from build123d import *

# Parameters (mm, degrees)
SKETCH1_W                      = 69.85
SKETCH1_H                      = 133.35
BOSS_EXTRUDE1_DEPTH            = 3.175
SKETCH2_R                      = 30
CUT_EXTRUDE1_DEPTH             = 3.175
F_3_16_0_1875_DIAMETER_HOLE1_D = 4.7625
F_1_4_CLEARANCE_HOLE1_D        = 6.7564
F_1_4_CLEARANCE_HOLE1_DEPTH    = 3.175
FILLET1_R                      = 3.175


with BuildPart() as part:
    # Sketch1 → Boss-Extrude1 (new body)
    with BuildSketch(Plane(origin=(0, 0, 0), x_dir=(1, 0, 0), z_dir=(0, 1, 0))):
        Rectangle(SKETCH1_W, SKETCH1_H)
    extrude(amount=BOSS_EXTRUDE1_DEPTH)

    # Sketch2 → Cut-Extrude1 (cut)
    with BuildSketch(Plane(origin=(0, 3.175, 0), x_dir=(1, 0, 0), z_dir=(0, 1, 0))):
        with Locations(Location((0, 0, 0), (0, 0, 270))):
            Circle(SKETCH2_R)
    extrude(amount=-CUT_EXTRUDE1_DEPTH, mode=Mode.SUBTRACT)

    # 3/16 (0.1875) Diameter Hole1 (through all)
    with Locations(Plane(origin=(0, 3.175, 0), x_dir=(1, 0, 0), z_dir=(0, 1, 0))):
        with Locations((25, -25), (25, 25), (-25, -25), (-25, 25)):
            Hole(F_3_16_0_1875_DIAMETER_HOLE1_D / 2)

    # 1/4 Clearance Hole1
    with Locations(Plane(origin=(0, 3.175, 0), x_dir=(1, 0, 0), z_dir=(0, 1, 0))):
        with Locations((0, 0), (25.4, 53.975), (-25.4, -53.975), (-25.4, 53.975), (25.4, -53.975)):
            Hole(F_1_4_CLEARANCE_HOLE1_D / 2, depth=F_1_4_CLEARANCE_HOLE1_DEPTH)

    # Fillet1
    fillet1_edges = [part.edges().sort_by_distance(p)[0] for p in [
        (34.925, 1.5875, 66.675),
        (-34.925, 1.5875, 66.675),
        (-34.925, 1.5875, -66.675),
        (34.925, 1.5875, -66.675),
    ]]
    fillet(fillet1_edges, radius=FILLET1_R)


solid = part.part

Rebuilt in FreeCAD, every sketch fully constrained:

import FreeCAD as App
import Part
import Sketcher

V = App.Vector
Q = App.Units.Quantity


def edges_at(feature, points):
    """Names of the edges that pass closest to the given points."""
    edges = feature.Shape.Edges
    near = lambda p: min(range(len(edges)), key=lambda i: edges[i].distToShape(Part.Vertex(*p))[0])
    return sorted({f"Edge{near(p) + 1}" for p in points})

doc = App.newDocument("Part")
body = doc.addObject("PartDesign::Body", "Body")

sketch1 = body.newObject("Sketcher::SketchObject", "Sketch")
sketch1.AttachmentSupport = (doc.getObject("XZ_Plane"), [""])
sketch1.MapMode = "FlatFace"
sketch1.addGeometry(Part.LineSegment(V(-34.925, -66.675, 0), V(-34.925, 66.675, 0)), False)
sketch1.addGeometry(Part.LineSegment(V(-34.925, 66.675, 0), V(34.925, 66.675, 0)), False)
sketch1.addGeometry(Part.LineSegment(V(34.925, 66.675, 0), V(34.925, -66.675, 0)), False)
sketch1.addGeometry(Part.LineSegment(V(34.925, -66.675, 0), V(-34.925, -66.675, 0)), False)
sketch1.addConstraint(Sketcher.Constraint("Coincident", 0, 2, 1, 1))
sketch1.addConstraint(Sketcher.Constraint("Coincident", 1, 2, 2, 1))
sketch1.addConstraint(Sketcher.Constraint("Coincident", 2, 2, 3, 1))
sketch1.addConstraint(Sketcher.Constraint("Coincident", 3, 2, 0, 1))
sketch1.addConstraint(Sketcher.Constraint("Vertical", 0))
sketch1.addConstraint(Sketcher.Constraint("Horizontal", 1))
sketch1.addConstraint(Sketcher.Constraint("Vertical", 2))
sketch1.addConstraint(Sketcher.Constraint("Horizontal", 3))
sketch1.addConstraint(Sketcher.Constraint("Symmetric", 0, 2, 2, 2, -1, 1))
sketch1.addConstraint(Sketcher.Constraint("DistanceX", 1, 1, 1, 2, Q("2.75 in")))
sketch1.addConstraint(Sketcher.Constraint("DistanceY", 0, 1, 0, 2, Q("5.25 in")))
pad1 = body.newObject("PartDesign::Pad", "Pad")
pad1.Profile = sketch1
pad1.Length = Q("0.125 in")
pad1.Reversed = True

sketch2 = body.newObject("Sketcher::SketchObject", "Sketch001")
sketch2.AttachmentSupport = (doc.getObject("XZ_Plane"), [""])
sketch2.MapMode = "FlatFace"
sketch2.AttachmentOffset = App.Placement(V(0, 0, -0.125 * 25.4), App.Rotation())
sketch2.addGeometry(Part.Circle(V(0, 0, 0), V(0, 0, 1), 30), False)
sketch2.addConstraint(Sketcher.Constraint("Coincident", 0, 3, -1, 1))
sketch2.addConstraint(Sketcher.Constraint("Diameter", 0, 60.0))
pocket1 = body.newObject("PartDesign::Pocket", "Pocket")
pocket1.Profile = sketch2
pocket1.Length = Q("0.125 in")
pocket1.Reversed = True

sketch3 = body.newObject("Sketcher::SketchObject", "Sketch002")
sketch3.AttachmentSupport = (doc.getObject("XZ_Plane"), [""])
sketch3.MapMode = "FlatFace"
sketch3.AttachmentOffset = App.Placement(V(0, 0, -0.125 * 25.4), App.Rotation())
sketch3.addGeometry(Part.Circle(V(25, 25, 0), V(0, 0, 1), 2.38125), False)
sketch3.addGeometry(Part.Circle(V(25, -25, 0), V(0, 0, 1), 2.38125), False)
sketch3.addGeometry(Part.Circle(V(-25, 25, 0), V(0, 0, 1), 2.38125), False)
sketch3.addGeometry(Part.Circle(V(-25, -25, 0), V(0, 0, 1), 2.38125), False)
sketch3.addConstraint(Sketcher.Constraint("Equal", 0, 1))
sketch3.addConstraint(Sketcher.Constraint("Equal", 1, 2))
sketch3.addConstraint(Sketcher.Constraint("Equal", 2, 3))
sketch3.addConstraint(Sketcher.Constraint("Symmetric", 1, 3, 2, 3, -1, 1))
sketch3.addConstraint(Sketcher.Constraint("Symmetric", 0, 3, 3, 3, -1, 1))
sketch3.addConstraint(Sketcher.Constraint("Symmetric", 0, 3, 2, 3, -2))
sketch3.addConstraint(Sketcher.Constraint("Diameter", 0, Q("0.1875 in")))
sketch3.addConstraint(Sketcher.Constraint("DistanceX", -1, 1, 0, 3, 25.0))
sketch3.addConstraint(Sketcher.Constraint("DistanceY", -1, 1, 0, 3, 25.0))
doc.recompute()
hole = body.newObject("PartDesign::Hole", "Hole")
hole.Profile = sketch3
hole.ThreadType = "None"
hole.Diameter = Q("0.1875 in")
hole.DepthType = "ThroughAll"
hole.Reversed = True

sketch4 = body.newObject("Sketcher::SketchObject", "Sketch003")
sketch4.AttachmentSupport = (doc.getObject("XZ_Plane"), [""])
sketch4.MapMode = "FlatFace"
sketch4.AttachmentOffset = App.Placement(V(0, 0, -0.125 * 25.4), App.Rotation())
sketch4.addGeometry(Part.Circle(V(0, 0, 0), V(0, 0, 1), 3.3782), False)
sketch4.addGeometry(Part.Circle(V(25.4, -53.975, 0), V(0, 0, 1), 3.3782), False)
sketch4.addGeometry(Part.Circle(V(-25.4, 53.975, 0), V(0, 0, 1), 3.3782), False)
sketch4.addGeometry(Part.Circle(V(-25.4, -53.975, 0), V(0, 0, 1), 3.3782), False)
sketch4.addGeometry(Part.Circle(V(25.4, 53.975, 0), V(0, 0, 1), 3.3782), False)
sketch4.addConstraint(Sketcher.Constraint("Coincident", 0, 3, -1, 1))
sketch4.addConstraint(Sketcher.Constraint("Equal", 0, 1))
sketch4.addConstraint(Sketcher.Constraint("Equal", 1, 2))
sketch4.addConstraint(Sketcher.Constraint("Equal", 2, 3))
sketch4.addConstraint(Sketcher.Constraint("Equal", 3, 4))
sketch4.addConstraint(Sketcher.Constraint("Symmetric", 1, 3, 2, 3, -1, 1))
sketch4.addConstraint(Sketcher.Constraint("Symmetric", 3, 3, 4, 3, -1, 1))
sketch4.addConstraint(Sketcher.Constraint("Symmetric", 1, 3, 3, 3, -2))
sketch4.addConstraint(Sketcher.Constraint("Diameter", 0, Q("0.266 in")))
sketch4.addConstraint(Sketcher.Constraint("DistanceX", -1, 1, 1, 3, Q("1 in")))
sketch4.addConstraint(Sketcher.Constraint("DistanceY", 1, 3, 2, 3, Q("4.25 in")))
doc.recompute()
hole2 = body.newObject("PartDesign::Hole", "Hole001")
hole2.Profile = sketch4
hole2.ThreadType = "None"
hole2.Diameter = Q("0.266 in")
hole2.DepthType = "Dimension"
hole2.Depth = Q("0.125 in")
hole2.DrillPoint = "Flat"
hole2.Reversed = True
doc.recompute()

fillet = body.newObject("PartDesign::Fillet", "Fillet")
fillet.Base = (hole2, edges_at(hole2, [
    (34.925, 1.587, 66.675),
    (-34.925, 1.587, 66.675),
    (-34.925, 1.587, -66.675),
    (34.925, 1.587, -66.675),
]))
fillet.Radius = Q("0.125 in")

doc.recompute()
